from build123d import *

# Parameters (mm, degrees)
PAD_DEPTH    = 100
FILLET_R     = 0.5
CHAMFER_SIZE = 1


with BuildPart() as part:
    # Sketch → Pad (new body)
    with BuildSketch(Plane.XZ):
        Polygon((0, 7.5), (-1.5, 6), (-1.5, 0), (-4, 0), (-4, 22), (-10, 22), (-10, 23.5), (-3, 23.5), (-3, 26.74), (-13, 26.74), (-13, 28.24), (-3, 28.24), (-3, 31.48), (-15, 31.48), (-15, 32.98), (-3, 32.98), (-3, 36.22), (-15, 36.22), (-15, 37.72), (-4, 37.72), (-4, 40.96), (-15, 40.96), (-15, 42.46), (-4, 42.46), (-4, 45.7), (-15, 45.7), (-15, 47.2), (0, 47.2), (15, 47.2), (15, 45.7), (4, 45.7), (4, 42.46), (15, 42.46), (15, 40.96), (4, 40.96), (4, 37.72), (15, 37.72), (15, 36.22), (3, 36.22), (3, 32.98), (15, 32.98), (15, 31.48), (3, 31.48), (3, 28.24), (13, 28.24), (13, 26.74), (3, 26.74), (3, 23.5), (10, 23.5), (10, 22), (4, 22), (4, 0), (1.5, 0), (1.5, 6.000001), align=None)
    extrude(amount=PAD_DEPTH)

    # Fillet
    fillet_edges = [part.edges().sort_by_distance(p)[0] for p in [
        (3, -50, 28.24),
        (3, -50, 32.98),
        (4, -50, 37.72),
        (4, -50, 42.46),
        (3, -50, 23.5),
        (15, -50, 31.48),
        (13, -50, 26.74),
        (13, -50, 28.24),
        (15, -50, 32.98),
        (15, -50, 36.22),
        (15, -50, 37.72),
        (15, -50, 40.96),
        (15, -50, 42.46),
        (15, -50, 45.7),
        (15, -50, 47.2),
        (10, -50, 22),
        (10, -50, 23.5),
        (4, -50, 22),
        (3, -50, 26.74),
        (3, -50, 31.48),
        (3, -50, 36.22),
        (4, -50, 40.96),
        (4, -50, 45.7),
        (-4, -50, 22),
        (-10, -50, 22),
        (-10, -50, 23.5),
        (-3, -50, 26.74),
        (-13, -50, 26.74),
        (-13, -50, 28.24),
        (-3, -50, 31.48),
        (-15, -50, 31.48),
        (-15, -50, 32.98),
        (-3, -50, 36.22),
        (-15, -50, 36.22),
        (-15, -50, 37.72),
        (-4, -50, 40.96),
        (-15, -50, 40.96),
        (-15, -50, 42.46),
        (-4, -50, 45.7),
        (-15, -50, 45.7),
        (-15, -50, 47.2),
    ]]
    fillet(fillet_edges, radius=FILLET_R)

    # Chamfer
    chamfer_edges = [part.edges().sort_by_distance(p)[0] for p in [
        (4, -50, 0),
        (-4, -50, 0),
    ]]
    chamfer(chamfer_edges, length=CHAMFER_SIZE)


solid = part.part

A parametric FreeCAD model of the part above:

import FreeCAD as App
import Part
import Sketcher


def edges_at(feature, points):
    """Names of the edges that pass closest to the given points."""
    edges = feature.Shape.Edges
    near = lambda p: min(range(len(edges)), key=lambda i: edges[i].distToShape(Part.Vertex(*p))[0])
    return sorted({f"Edge{near(p) + 1}" for p in points})

doc = App.newDocument("Part")
body = doc.addObject("PartDesign::Body", "Body")

sketch1 = doc.addObject("Sketcher::SketchObject", "Sketch")
body.addObject(sketch1)
sketch1.AttachmentSupport = (doc.XZ_Plane, [""])
sketch1.MapMode = "FlatFace"
sketch1.addGeometry(Part.LineSegment(App.Vector(-1.5, 6, 0), App.Vector(0, 7.5, 0)), False)
sketch1.addGeometry(Part.LineSegment(App.Vector(0, 7.5, 0), App.Vector(1.5, 6, 0)), False)
sketch1.addGeometry(Part.LineSegment(App.Vector(1.5, 6, 0), App.Vector(1.5, 0, 0)), False)
sketch1.addGeometry(Part.LineSegment(App.Vector(1.5, 0, 0), App.Vector(4, 0, 0)), False)
sketch1.addGeometry(Part.LineSegment(App.Vector(4, 0, 0), App.Vector(4, 22, 0)), False)
sketch1.addGeometry(Part.LineSegment(App.Vector(4, 22, 0), App.Vector(10, 22, 0)), False)
sketch1.addGeometry(Part.LineSegment(App.Vector(10, 22, 0), App.Vector(10, 23.5, 0)), False)
sketch1.addGeometry(Part.LineSegment(App.Vector(10, 23.5, 0), App.Vector(3, 23.5, 0)), False)
sketch1.addGeometry(Part.LineSegment(App.Vector(3, 23.5, 0), App.Vector(3, 26.7, 0)), False)
sketch1.addGeometry(Part.LineSegment(App.Vector(3, 26.7, 0), App.Vector(13, 26.7, 0)), False)
sketch1.addGeometry(Part.LineSegment(App.Vector(13, 26.7, 0), App.Vector(13, 28.2, 0)), False)
sketch1.addGeometry(Part.LineSegment(App.Vector(13, 28.2, 0), App.Vector(3, 28.2, 0)), False)
sketch1.addGeometry(Part.LineSegment(App.Vector(3, 28.2, 0), App.Vector(3, 31.5, 0)), False)
sketch1.addGeometry(Part.LineSegment(App.Vector(3, 31.5, 0), App.Vector(15, 31.5, 0)), False)
sketch1.addGeometry(Part.LineSegment(App.Vector(15, 31.5, 0), App.Vector(15, 33, 0)), False)
sketch1.addGeometry(Part.LineSegment(App.Vector(15, 33, 0), App.Vector(3, 33, 0)), False)
sketch1.addGeometry(Part.LineSegment(App.Vector(3, 33, 0), App.Vector(3, 36.2, 0)), False)
sketch1.addGeometry(Part.LineSegment(App.Vector(3, 36.2, 0), App.Vector(15, 36.2, 0)), False)
sketch1.addGeometry(Part.LineSegment(App.Vector(15, 36.2, 0), App.Vector(15, 37.7, 0)), False)
sketch1.addGeometry(Part.LineSegment(App.Vector(15, 37.7, 0), App.Vector(4, 37.7, 0)), False)
sketch1.addGeometry(Part.LineSegment(App.Vector(4, 37.7, 0), App.Vector(4, 41, 0)), False)
sketch1.addGeometry(Part.LineSegment(App.Vector(4, 41, 0), App.Vector(15, 41, 0)), False)
sketch1.addGeometry(Part.LineSegment(App.Vector(15, 41, 0), App.Vector(15, 42.5, 0)), False)
sketch1.addGeometry(Part.LineSegment(App.Vector(15, 42.5, 0), App.Vector(4, 42.5, 0)), False)
sketch1.addGeometry(Part.LineSegment(App.Vector(4, 42.5, 0), App.Vector(4, 45.7, 0)), False)
sketch1.addGeometry(Part.LineSegment(App.Vector(4, 45.7, 0), App.Vector(15, 45.7, 0)), False)
sketch1.addGeometry(Part.LineSegment(App.Vector(15, 45.7, 0), App.Vector(15, 47.2, 0)), False)
sketch1.addGeometry(Part.LineSegment(App.Vector(15, 47.2, 0), App.Vector(-15, 47.2, 0)), False)
sketch1.addGeometry(Part.LineSegment(App.Vector(-15, 47.2, 0), App.Vector(-15, 45.7, 0)), False)
sketch1.addGeometry(Part.LineSegment(App.Vector(-15, 45.7, 0), App.Vector(-4, 45.7, 0)), False)
sketch1.addGeometry(Part.LineSegment(App.Vector(-4, 45.7, 0), App.Vector(-4, 42.5, 0)), False)
sketch1.addGeometry(Part.LineSegment(App.Vector(-4, 42.5, 0), App.Vector(-15, 42.5, 0)), False)
sketch1.addGeometry(Part.LineSegment(App.Vector(-15, 42.5, 0), App.Vector(-15, 41, 0)), False)
sketch1.addGeometry(Part.LineSegment(App.Vector(-15, 41, 0), App.Vector(-4, 41, 0)), False)
sketch1.addGeometry(Part.LineSegment(App.Vector(-4, 41, 0), App.Vector(-4, 37.7, 0)), False)
sketch1.addGeometry(Part.LineSegment(App.Vector(-4, 37.7, 0), App.Vector(-15, 37.7, 0)), False)
sketch1.addGeometry(Part.LineSegment(App.Vector(-15, 37.7, 0), App.Vector(-15, 36.2, 0)), False)
sketch1.addGeometry(Part.LineSegment(App.Vector(-15, 36.2, 0), App.Vector(-3, 36.2, 0)), False)
sketch1.addGeometry(Part.LineSegment(App.Vector(-3, 36.2, 0), App.Vector(-3, 33, 0)), False)
sketch1.addGeometry(Part.LineSegment(App.Vector(-3, 33, 0), App.Vector(-15, 33, 0)), False)
sketch1.addGeometry(Part.LineSegment(App.Vector(-15, 33, 0), App.Vector(-15, 31.5, 0)), False)
sketch1.addGeometry(Part.LineSegment(App.Vector(-15, 31.5, 0), App.Vector(-3, 31.5, 0)), False)
sketch1.addGeometry(Part.LineSegment(App.Vector(-3, 31.5, 0), App.Vector(-3, 28.2, 0)), False)
sketch1.addGeometry(Part.LineSegment(App.Vector(-3, 28.2, 0), App.Vector(-13, 28.2, 0)), False)
sketch1.addGeometry(Part.LineSegment(App.Vector(-13, 28.2, 0), App.Vector(-13, 26.7, 0)), False)
sketch1.addGeometry(Part.LineSegment(App.Vector(-13, 26.7, 0), App.Vector(-3, 26.7, 0)), False)
sketch1.addGeometry(Part.LineSegment(App.Vector(-3, 26.7, 0), App.Vector(-3, 23.5, 0)), False)
sketch1.addGeometry(Part.LineSegment(App.Vector(-3, 23.5, 0), App.Vector(-10, 23.5, 0)), False)
sketch1.addGeometry(Part.LineSegment(App.Vector(-10, 23.5, 0), App.Vector(-10, 22, 0)), False)
sketch1.addGeometry(Part.LineSegment(App.Vector(-10, 22, 0), App.Vector(-4, 22, 0)), False)
sketch1.addGeometry(Part.LineSegment(App.Vector(-4, 22, 0), App.Vector(-4, 0, 0)), False)
sketch1.addGeometry(Part.LineSegment(App.Vector(-4, 0, 0), App.Vector(-1.5, 0, 0)), False)
sketch1.addGeometry(Part.LineSegment(App.Vector(-1.5, 0, 0), App.Vector(-1.5, 6, 0)), False)
sketch1.addConstraint(Sketcher.Constraint("Coincident", 0, 2, 1, 1))
sketch1.addConstraint(Sketcher.Constraint("Coincident", 1, 2, 2, 1))
sketch1.addConstraint(Sketcher.Constraint("Coincident", 2, 2, 3, 1))
sketch1.addConstraint(Sketcher.Constraint("Coincident", 3, 2, 4, 1))
sketch1.addConstraint(Sketcher.Constraint("Coincident", 4, 2, 5, 1))
sketch1.addConstraint(Sketcher.Constraint("Coincident", 5, 2, 6, 1))
sketch1.addConstraint(Sketcher.Constraint("Coincident", 6, 2, 7, 1))
sketch1.addConstraint(Sketcher.Constraint("Coincident", 7, 2, 8, 1))
sketch1.addConstraint(Sketcher.Constraint("Coincident", 8, 2, 9, 1))
sketch1.addConstraint(Sketcher.Constraint("Coincident", 9, 2, 10, 1))
sketch1.addConstraint(Sketcher.Constraint("Coincident", 10, 2, 11, 1))
sketch1.addConstraint(Sketcher.Constraint("Coincident", 11, 2, 12, 1))
sketch1.addConstraint(Sketcher.Constraint("Coincident", 12, 2, 13, 1))
sketch1.addConstraint(Sketcher.Constraint("Coincident", 13, 2, 14, 1))
sketch1.addConstraint(Sketcher.Constraint("Coincident", 14, 2, 15, 1))
sketch1.addConstraint(Sketcher.Constraint("Coincident", 15, 2, 16, 1))
sketch1.addConstraint(Sketcher.Constraint("Coincident", 16, 2, 17, 1))
sketch1.addConstraint(Sketcher.Constraint("Coincident", 17, 2, 18, 1))
sketch1.addConstraint(Sketcher.Constraint("Coincident", 18, 2, 19, 1))
sketch1.addConstraint(Sketcher.Constraint("Coincident", 19, 2, 20, 1))
sketch1.addConstraint(Sketcher.Constraint("Coincident", 20, 2, 21, 1))
sketch1.addConstraint(Sketcher.Constraint("Coincident", 21, 2, 22, 1))
sketch1.addConstraint(Sketcher.Constraint("Coincident", 22, 2, 23, 1))
sketch1.addConstraint(Sketcher.Constraint("Coincident", 23, 2, 24, 1))
sketch1.addConstraint(Sketcher.Constraint("Coincident", 24, 2, 25, 1))
sketch1.addConstraint(Sketcher.Constraint("Coincident", 25, 2, 26, 1))
sketch1.addConstraint(Sketcher.Constraint("Coincident", 26, 2, 27, 1))
sketch1.addConstraint(Sketcher.Constraint("Coincident", 27, 2, 28, 1))
sketch1.addConstraint(Sketcher.Constraint("Coincident", 28, 2, 29, 1))
sketch1.addConstraint(Sketcher.Constraint("Coincident", 29, 2, 30, 1))
sketch1.addConstraint(Sketcher.Constraint("Coincident", 30, 2, 31, 1))
sketch1.addConstraint(Sketcher.Constraint("Coincident", 31, 2, 32, 1))
sketch1.addConstraint(Sketcher.Constraint("Coincident", 32, 2, 33, 1))
sketch1.addConstraint(Sketcher.Constraint("Coincident", 33, 2, 34, 1))
sketch1.addConstraint(Sketcher.Constraint("Coincident", 34, 2, 35, 1))
sketch1.addConstraint(Sketcher.Constraint("Coincident", 35, 2, 36, 1))
sketch1.addConstraint(Sketcher.Constraint("Coincident", 36, 2, 37, 1))
sketch1.addConstraint(Sketcher.Constraint("Coincident", 37, 2, 38, 1))
sketch1.addConstraint(Sketcher.Constraint("Coincident", 38, 2, 39, 1))
sketch1.addConstraint(Sketcher.Constraint("Coincident", 39, 2, 40, 1))
sketch1.addConstraint(Sketcher.Constraint("Coincident", 40, 2, 41, 1))
sketch1.addConstraint(Sketcher.Constraint("Coincident", 41, 2, 42, 1))
sketch1.addConstraint(Sketcher.Constraint("Coincident", 42, 2, 43, 1))
sketch1.addConstraint(Sketcher.Constraint("Coincident", 43, 2, 44, 1))
sketch1.addConstraint(Sketcher.Constraint("Coincident", 44, 2, 45, 1))
sketch1.addConstraint(Sketcher.Constraint("Coincident", 45, 2, 46, 1))
sketch1.addConstraint(Sketcher.Constraint("Coincident", 46, 2, 47, 1))
sketch1.addConstraint(Sketcher.Constraint("Coincident", 47, 2, 48, 1))
sketch1.addConstraint(Sketcher.Constraint("Coincident", 48, 2, 49, 1))
sketch1.addConstraint(Sketcher.Constraint("Coincident", 49, 2, 50, 1))
sketch1.addConstraint(Sketcher.Constraint("Coincident", 50, 2, 51, 1))
sketch1.addConstraint(Sketcher.Constraint("Coincident", 51, 2, 52, 1))
sketch1.addConstraint(Sketcher.Constraint("Coincident", 52, 2, 0, 1))
sketch1.addConstraint(Sketcher.Constraint("Vertical", 2))
sketch1.addConstraint(Sketcher.Constraint("Horizontal", 3))
sketch1.addConstraint(Sketcher.Constraint("Vertical", 4))
sketch1.addConstraint(Sketcher.Constraint("Horizontal", 5))
sketch1.addConstraint(Sketcher.Constraint("Vertical", 6))
sketch1.addConstraint(Sketcher.Constraint("Horizontal", 7))
sketch1.addConstraint(Sketcher.Constraint("Vertical", 8))
sketch1.addConstraint(Sketcher.Constraint("Horizontal", 9))
sketch1.addConstraint(Sketcher.Constraint("Vertical", 10))
sketch1.addConstraint(Sketcher.Constraint("Horizontal", 11))
sketch1.addConstraint(Sketcher.Constraint("Vertical", 12))
sketch1.addConstraint(Sketcher.Constraint("Horizontal", 13))
sketch1.addConstraint(Sketcher.Constraint("Vertical", 14))
sketch1.addConstraint(Sketcher.Constraint("Horizontal", 15))
sketch1.addConstraint(Sketcher.Constraint("Vertical", 16))
sketch1.addConstraint(Sketcher.Constraint("Horizontal", 17))
sketch1.addConstraint(Sketcher.Constraint("Vertical", 18))
sketch1.addConstraint(Sketcher.Constraint("Horizontal", 19))
sketch1.addConstraint(Sketcher.Constraint("Vertical", 20))
sketch1.addConstraint(Sketcher.Constraint("Horizontal", 21))
sketch1.addConstraint(Sketcher.Constraint("Vertical", 22))
sketch1.addConstraint(Sketcher.Constraint("Horizontal", 23))
sketch1.addConstraint(Sketcher.Constraint("Vertical", 24))
sketch1.addConstraint(Sketcher.Constraint("Horizontal", 25))
sketch1.addConstraint(Sketcher.Constraint("Vertical", 26))
sketch1.addConstraint(Sketcher.Constraint("Horizontal", 27))
sketch1.addConstraint(Sketcher.Constraint("Vertical", 28))
sketch1.addConstraint(Sketcher.Constraint("Horizontal", 29))
sketch1.addConstraint(Sketcher.Constraint("Vertical", 30))
sketch1.addConstraint(Sketcher.Constraint("Horizontal", 31))
sketch1.addConstraint(Sketcher.Constraint("Vertical", 32))
sketch1.addConstraint(Sketcher.Constraint("Horizontal", 33))
sketch1.addConstraint(Sketcher.Constraint("Vertical", 34))
sketch1.addConstraint(Sketcher.Constraint("Horizontal", 35))
sketch1.addConstraint(Sketcher.Constraint("Vertical", 36))
sketch1.addConstraint(Sketcher.Constraint("Horizontal", 37))
sketch1.addConstraint(Sketcher.Constraint("Vertical", 38))
sketch1.addConstraint(Sketcher.Constraint("Horizontal", 39))
sketch1.addConstraint(Sketcher.Constraint("Vertical", 40))
sketch1.addConstraint(Sketcher.Constraint("Horizontal", 41))
sketch1.addConstraint(Sketcher.Constraint("Vertical", 42))
sketch1.addConstraint(Sketcher.Constraint("Horizontal", 43))
sketch1.addConstraint(Sketcher.Constraint("Vertical", 44))
sketch1.addConstraint(Sketcher.Constraint("Horizontal", 45))
sketch1.addConstraint(Sketcher.Constraint("Vertical", 46))
sketch1.addConstraint(Sketcher.Constraint("Horizontal", 47))
sketch1.addConstraint(Sketcher.Constraint("Vertical", 48))
sketch1.addConstraint(Sketcher.Constraint("Horizontal", 49))
sketch1.addConstraint(Sketcher.Constraint("Vertical", 50))
sketch1.addConstraint(Sketcher.Constraint("Horizontal", 51))
sketch1.addConstraint(Sketcher.Constraint("Vertical", 52))
sketch1.addConstraint(Sketcher.Constraint("Symmetric", 3, 2, 50, 2, -1, 1))
sketch1.addConstraint(Sketcher.Constraint("Symmetric", 25, 2, 28, 2, -2))
sketch1.addConstraint(Sketcher.Constraint("Symmetric", 23, 2, 30, 2, -2))
sketch1.addConstraint(Sketcher.Constraint("Symmetric", 21, 2, 32, 2, -2))
sketch1.addConstraint(Sketcher.Constraint("Symmetric", 19, 2, 34, 2, -2))
sketch1.addConstraint(Sketcher.Constraint("Symmetric", 17, 2, 36, 2, -2))
sketch1.addConstraint(Sketcher.Constraint("Symmetric", 15, 2, 38, 2, -2))
sketch1.addConstraint(Sketcher.Constraint("Symmetric", 13, 2, 40, 2, -2))
sketch1.addConstraint(Sketcher.Constraint("Symmetric", 11, 2, 42, 2, -2))
sketch1.addConstraint(Sketcher.Constraint("Symmetric", 9, 2, 44, 2, -2))
sketch1.addConstraint(Sketcher.Constraint("Symmetric", 7, 2, 46, 2, -2))
sketch1.addConstraint(Sketcher.Constraint("Symmetric", 5, 2, 48, 2, -2))
sketch1.addConstraint(Sketcher.Constraint("Symmetric", 2, 2, 51, 2, -2))
sketch1.addConstraint(Sketcher.Constraint("PointOnObject", 0, 2, -2))
sketch1.addConstraint(Sketcher.Constraint("Perpendicular", 0, 1))
sketch1.addConstraint(Sketcher.Constraint("Horizontal", 1, 2, 52, 2))
sketch1.addConstraint(Sketcher.Constraint("Vertical", 8, 2, 11, 2))
sketch1.addConstraint(Sketcher.Constraint("Vertical", 12, 2, 15, 2))
sketch1.addConstraint(Sketcher.Constraint("Vertical", 14, 2, 17, 2))
sketch1.addConstraint(Sketcher.Constraint("Vertical", 4, 2, 19, 2))
sketch1.addConstraint(Sketcher.Constraint("Vertical", 18, 2, 21, 2))
sketch1.addConstraint(Sketcher.Constraint("Vertical", 20, 2, 23, 2))
sketch1.addConstraint(Sketcher.Constraint("Vertical", 22, 2, 25, 2))
sketch1.addConstraint(Sketcher.Constraint("Equal", 49, 2))
sketch1.addConstraint(Sketcher.Constraint("Equal", 6, 10))
sketch1.addConstraint(Sketcher.Constraint("Equal", 8, 12))
sketch1.addConstraint(Sketcher.Constraint("Equal", 10, 14))
sketch1.addConstraint(Sketcher.Constraint("Equal", 12, 16))
sketch1.addConstraint(Sketcher.Constraint("Equal", 14, 18))
sketch1.addConstraint(Sketcher.Constraint("Equal", 16, 20))
sketch1.addConstraint(Sketcher.Constraint("Equal", 18, 22))
sketch1.addConstraint(Sketcher.Constraint("Equal", 20, 24))
sketch1.addConstraint(Sketcher.Constraint("Equal", 22, 26))
sketch1.addConstraint(Sketcher.Constraint("DistanceX", 5, 1, 5, 2, 6.0))
sketch1.addConstraint(Sketcher.Constraint("DistanceX", 7, 2, 7, 1, 7.0))
sketch1.addConstraint(Sketcher.Constraint("DistanceX", 9, 1, 9, 2, 10.0))
sketch1.addConstraint(Sketcher.Constraint("DistanceX", 13, 1, 13, 2, 12.0))
sketch1.addConstraint(Sketcher.Constraint("DistanceX", 27, 2, 27, 1, 30.0))
sketch1.addConstraint(Sketcher.Constraint("DistanceY", 4, 1, 4, 2, 22.0))
sketch1.addConstraint(Sketcher.Constraint("DistanceX", 3, 1, 3, 2, 2.5))
sketch1.addConstraint(Sketcher.Constraint("DistanceY", 6, 1, 6, 2, 1.5))
sketch1.addConstraint(Sketcher.Constraint("DistanceY", 8, 1, 8, 2, 3.24))
pad1 = doc.addObject("PartDesign::Pad", "Pad")
body.addObject(pad1)
pad1.Profile = sketch1
pad1.Length = 100
doc.recompute()

fillet = doc.addObject("PartDesign::Fillet", "Fillet")
body.addObject(fillet)
fillet.Base = (pad1, edges_at(pad1, [
    (3, -50, 28.24),
    (3, -50, 32.98),
    (4, -50, 37.72),
    (4, -50, 42.46),
    (3, -50, 23.5),
    (15, -50, 31.48),
    (13, -50, 26.74),
    (13, -50, 28.24),
    (15, -50, 32.98),
    (15, -50, 36.22),
    (15, -50, 37.72),
    (15, -50, 40.96),
    (15, -50, 42.46),
    (15, -50, 45.7),
    (15, -50, 47.2),
    (10, -50, 22),
    (10, -50, 23.5),
    (4, -50, 22),
    (3, -50, 26.74),
    (3, -50, 31.48),
    (3, -50, 36.22),
    (4, -50, 40.96),
    (4, -50, 45.7),
    (-4, -50, 22),
    (-10, -50, 22),
    (-10, -50, 23.5),
    (-3, -50, 26.74),
    (-13, -50, 26.74),
    (-13, -50, 28.24),
    (-3, -50, 31.48),
    (-15, -50, 31.48),
    (-15, -50, 32.98),
    (-3, -50, 36.22),
    (-15, -50, 36.22),
    (-15, -50, 37.72),
    (-4, -50, 40.96),
    (-15, -50, 40.96),
    (-15, -50, 42.46),
    (-4, -50, 45.7),
    (-15, -50, 45.7),
    (-15, -50, 47.2),
]))
fillet.Radius = 0.5
doc.recompute()

chamfer = doc.addObject("PartDesign::Chamfer", "Chamfer")
body.addObject(chamfer)
chamfer.Base = (fillet, edges_at(fillet, [(4, -50, 0), (-4, -50, 0)]))
chamfer.Size = 1

doc.recompute()
